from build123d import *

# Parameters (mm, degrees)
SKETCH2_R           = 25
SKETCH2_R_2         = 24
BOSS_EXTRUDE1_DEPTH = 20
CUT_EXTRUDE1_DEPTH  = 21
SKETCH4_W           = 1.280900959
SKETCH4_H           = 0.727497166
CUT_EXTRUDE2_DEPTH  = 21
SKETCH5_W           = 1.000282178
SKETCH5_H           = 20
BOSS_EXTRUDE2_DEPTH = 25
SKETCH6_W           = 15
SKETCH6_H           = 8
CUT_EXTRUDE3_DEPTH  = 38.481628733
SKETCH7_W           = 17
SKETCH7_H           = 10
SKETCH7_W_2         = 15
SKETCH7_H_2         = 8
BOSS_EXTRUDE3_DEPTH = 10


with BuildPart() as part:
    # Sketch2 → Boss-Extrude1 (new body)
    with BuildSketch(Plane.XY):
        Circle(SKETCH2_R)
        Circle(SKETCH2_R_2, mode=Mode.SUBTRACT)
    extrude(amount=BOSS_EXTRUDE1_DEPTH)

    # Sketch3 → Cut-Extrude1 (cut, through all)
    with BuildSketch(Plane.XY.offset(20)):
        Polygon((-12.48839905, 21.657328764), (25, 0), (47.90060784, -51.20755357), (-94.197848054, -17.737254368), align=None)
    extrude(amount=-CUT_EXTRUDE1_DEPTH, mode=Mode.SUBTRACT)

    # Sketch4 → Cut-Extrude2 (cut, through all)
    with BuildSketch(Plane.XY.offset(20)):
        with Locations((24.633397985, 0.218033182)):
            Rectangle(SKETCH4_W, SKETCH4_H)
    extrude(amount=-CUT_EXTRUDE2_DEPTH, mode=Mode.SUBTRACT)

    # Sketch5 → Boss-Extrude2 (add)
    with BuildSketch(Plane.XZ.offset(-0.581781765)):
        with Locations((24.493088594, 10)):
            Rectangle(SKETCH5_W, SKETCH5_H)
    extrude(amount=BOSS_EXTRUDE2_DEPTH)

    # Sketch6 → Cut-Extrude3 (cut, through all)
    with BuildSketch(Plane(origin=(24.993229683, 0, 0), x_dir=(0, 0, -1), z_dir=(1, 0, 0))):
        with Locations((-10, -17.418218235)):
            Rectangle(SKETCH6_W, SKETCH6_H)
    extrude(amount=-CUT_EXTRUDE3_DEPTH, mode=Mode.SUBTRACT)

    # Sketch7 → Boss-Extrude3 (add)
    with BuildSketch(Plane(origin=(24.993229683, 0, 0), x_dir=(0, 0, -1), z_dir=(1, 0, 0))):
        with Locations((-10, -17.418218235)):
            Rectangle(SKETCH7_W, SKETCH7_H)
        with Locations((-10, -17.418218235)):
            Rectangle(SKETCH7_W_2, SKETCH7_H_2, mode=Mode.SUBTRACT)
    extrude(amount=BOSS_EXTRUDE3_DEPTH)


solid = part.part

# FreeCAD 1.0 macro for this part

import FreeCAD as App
import Part
import Sketcher

doc = App.newDocument("Part")
params = doc.addObject("Spreadsheet::Sheet", "Params")
for row, (alias, value) in enumerate([
    ("sketch1_diameter", "50 mm"),
    ("sketch1_diameter2", "48 mm"),
    ("pad1_length", "20 mm"),
    ("sketch4_height", "20 mm"),
    ("pad2_length", "25 mm"),
    ("sketch5_width", "8 mm"),
    ("sketch5_height", "15 mm"),
    ("sketch6_width", "10 mm"),
    ("sketch6_width2", "8 mm"),
    ("sketch6_height", "17 mm"),
    ("sketch6_height2", "15 mm"),
    ("pad3_length", "10 mm"),
], start=1):
    params.set(f"A{row}", alias)
    params.set(f"B{row}", "=" + value)
    params.setAlias(f"B{row}", alias)

body = doc.addObject("PartDesign::Body", "Body")

# Sketch on XY plane
sketch1 = body.newObject("Sketcher::SketchObject", "Sketch")
sketch1.AttachmentSupport = (doc.getObject("XY_Plane"), [""])
sketch1.MapMode = "FlatFace"
sketch1.addGeometry(Part.Circle(App.Vector(0, 0, 0), App.Vector(0, 0, 1), 25), False)
sketch1.addGeometry(Part.Circle(App.Vector(0, 0, 0), App.Vector(0, 0, 1), 24), False)
sketch1.addConstraint(Sketcher.Constraint("Coincident", 0, 3, -1, 1))
sketch1.addConstraint(Sketcher.Constraint("Coincident", 1, 3, -1, 1))
sketch1.addConstraint(Sketcher.Constraint("Diameter", 0, 50.0))
sketch1.addConstraint(Sketcher.Constraint("Diameter", 1, 48.0))
sketch1.setExpression("Constraints[2]", "Params.sketch1_diameter")
sketch1.setExpression("Constraints[3]", "Params.sketch1_diameter2")
pad1 = body.newObject("PartDesign::Pad", "Pad")
pad1.Profile = sketch1
pad1.setExpression("Length", "Params.pad1_length")

# Sketch on XY plane
sketch2 = body.newObject("Sketcher::SketchObject", "Sketch001")
sketch2.AttachmentSupport = (doc.getObject("XY_Plane"), [""])
sketch2.MapMode = "FlatFace"
sketch2.AttachmentOffset = App.Placement(App.Vector(0, 0, 20), App.Rotation())
sketch2.addGeometry(Part.LineSegment(App.Vector(25, 0, 0), App.Vector(-12.488399, 21.657329, 0)), False)
sketch2.addGeometry(Part.LineSegment(App.Vector(-12.488399, 21.657329, 0), App.Vector(-94.197848, -17.737254, 0)), False)
sketch2.addGeometry(Part.LineSegment(App.Vector(-94.197848, -17.737254, 0), App.Vector(47.900608, -51.207554, 0)), False)
sketch2.addGeometry(Part.LineSegment(App.Vector(47.900608, -51.207554, 0), App.Vector(25, 0, 0)), False)
sketch2.addConstraint(Sketcher.Constraint("Coincident", 0, 2, 1, 1))
sketch2.addConstraint(Sketcher.Constraint("Coincident", 1, 2, 2, 1))
sketch2.addConstraint(Sketcher.Constraint("Coincident", 2, 2, 3, 1))
sketch2.addConstraint(Sketcher.Constraint("Coincident", 3, 2, 0, 1))
sketch2.addConstraint(Sketcher.Constraint("PointOnObject", 3, 2, -1))
sketch2.addConstraint(Sketcher.Constraint("DistanceX", -1, 1, 3, 2, 25.0))
sketch2.addConstraint(Sketcher.Constraint("DistanceX", 0, 2, -1, 1, 12.488399))
sketch2.addConstraint(Sketcher.Constraint("DistanceY", 2, 2, 1, 2, 33.470299))
sketch2.addConstraint(Sketcher.Constraint("Distance", 0, 43.294572))
sketch2.addConstraint(Sketcher.Constraint("Distance", 1, 90.710348))
sketch2.addConstraint(Sketcher.Constraint("Distance", 3, 56.095021))
sketch2.addConstraint(Sketcher.Constraint("DistanceX", 1, 2, -1, 1, 94.197848))
pocket1 = body.newObject("PartDesign::Pocket", "Pocket")
pocket1.Profile = sketch2
pocket1.Type = "ThroughAll"

# Sketch on XY plane
sketch3 = body.newObject("Sketcher::SketchObject", "Sketch002")
sketch3.AttachmentSupport = (doc.getObject("XY_Plane"), [""])
sketch3.MapMode = "FlatFace"
sketch3.AttachmentOffset = App.Placement(App.Vector(0, 0, 20), App.Rotation())
sketch3.addGeometry(Part.LineSegment(App.Vector(23.992948, 0.581782, 0), App.Vector(23.992948, -0.145715, 0)), False)
sketch3.addGeometry(Part.LineSegment(App.Vector(23.992948, -0.145715, 0), App.Vector(25.273848, -0.145715, 0)), False)
sketch3.addGeometry(Part.LineSegment(App.Vector(25.273848, -0.145715, 0), App.Vector(25.273848, 0.581782, 0)), False)
sketch3.addGeometry(Part.LineSegment(App.Vector(25.273848, 0.581782, 0), App.Vector(23.992948, 0.581782, 0)), False)
sketch3.addConstraint(Sketcher.Constraint("Coincident", 0, 2, 1, 1))
sketch3.addConstraint(Sketcher.Constraint("Coincident", 1, 2, 2, 1))
sketch3.addConstraint(Sketcher.Constraint("Coincident", 2, 2, 3, 1))
sketch3.addConstraint(Sketcher.Constraint("Coincident", 3, 2, 0, 1))
sketch3.addConstraint(Sketcher.Constraint("Vertical", 0))
sketch3.addConstraint(Sketcher.Constraint("Horizontal", 1))
sketch3.addConstraint(Sketcher.Constraint("Vertical", 2))
sketch3.addConstraint(Sketcher.Constraint("Horizontal", 3))
sketch3.addConstraint(Sketcher.Constraint("DistanceX", 1, 1, 1, 2, 1.280901))
sketch3.addConstraint(Sketcher.Constraint("DistanceY", 0, 2, 0, 1, 0.727497))
sketch3.addConstraint(Sketcher.Constraint("DistanceX", -1, 1, 1, 2, 25.273848))
sketch3.addConstraint(Sketcher.Constraint("DistanceY", -1, 1, 2, 2, 0.581782))
pocket2 = body.newObject("PartDesign::Pocket", "Pocket001")
pocket2.Profile = sketch3
pocket2.Type = "ThroughAll"

# Sketch on XZ plane
sketch4 = body.newObject("Sketcher::SketchObject", "Sketch003")
sketch4.AttachmentSupport = (doc.getObject("XZ_Plane"), [""])
sketch4.MapMode = "FlatFace"
sketch4.AttachmentOffset = App.Placement(App.Vector(0, 0, -0.581782), App.Rotation())
sketch4.addGeometry(Part.LineSegment(App.Vector(23.992948, 20, 0), App.Vector(23.992948, 0, 0)), False)
sketch4.addGeometry(Part.LineSegment(App.Vector(23.992948, 0, 0), App.Vector(24.99323, 0, 0)), False)
sketch4.addGeometry(Part.LineSegment(App.Vector(24.99323, 0, 0), App.Vector(24.99323, 20, 0)), False)
sketch4.addGeometry(Part.LineSegment(App.Vector(24.99323, 20, 0), App.Vector(23.992948, 20, 0)), False)
sketch4.addConstraint(Sketcher.Constraint("Coincident", 0, 2, 1, 1))
sketch4.addConstraint(Sketcher.Constraint("Coincident", 1, 2, 2, 1))
sketch4.addConstraint(Sketcher.Constraint("Coincident", 2, 2, 3, 1))
sketch4.addConstraint(Sketcher.Constraint("Coincident", 3, 2, 0, 1))
sketch4.addConstraint(Sketcher.Constraint("Vertical", 0))
sketch4.addConstraint(Sketcher.Constraint("Horizontal", 1))
sketch4.addConstraint(Sketcher.Constraint("Vertical", 2))
sketch4.addConstraint(Sketcher.Constraint("Horizontal", 3))
sketch4.addConstraint(Sketcher.Constraint("PointOnObject", 0, 2, -1))
sketch4.addConstraint(Sketcher.Constraint("DistanceY", 0, 2, 0, 1, 20.0))
sketch4.addConstraint(Sketcher.Constraint("DistanceX", 1, 1, 1, 2, 1.000282))
sketch4.addConstraint(Sketcher.Constraint("DistanceX", -1, 1, 1, 2, 24.99323))
sketch4.setExpression("Constraints[9]", "Params.sketch4_height")
pad2 = body.newObject("PartDesign::Pad", "Pad001")
pad2.Profile = sketch4
pad2.setExpression("Length", "Params.pad2_length")

# Sketch on YZ plane
sketch5 = body.newObject("Sketcher::SketchObject", "Sketch004")
sketch5.AttachmentSupport = (doc.getObject("YZ_Plane"), [""])
sketch5.MapMode = "FlatFace"
sketch5.AttachmentOffset = App.Placement(App.Vector(0, 0, 24.99323), App.Rotation())
sketch5.addGeometry(Part.LineSegment(App.Vector(-13.418218, 17.5, 0), App.Vector(-21.418218, 17.5, 0)), False)
sketch5.addGeometry(Part.LineSegment(App.Vector(-21.418218, 17.5, 0), App.Vector(-21.418218, 2.5, 0)), False)
sketch5.addGeometry(Part.LineSegment(App.Vector(-21.418218, 2.5, 0), App.Vector(-13.418218, 2.5, 0)), False)
sketch5.addGeometry(Part.LineSegment(App.Vector(-13.418218, 2.5, 0), App.Vector(-13.418218, 17.5, 0)), False)
sketch5.addConstraint(Sketcher.Constraint("Coincident", 0, 2, 1, 1))
sketch5.addConstraint(Sketcher.Constraint("Coincident", 1, 2, 2, 1))
sketch5.addConstraint(Sketcher.Constraint("Coincident", 2, 2, 3, 1))
sketch5.addConstraint(Sketcher.Constraint("Coincident", 3, 2, 0, 1))
sketch5.addConstraint(Sketcher.Constraint("Horizontal", 0))
sketch5.addConstraint(Sketcher.Constraint("Vertical", 1))
sketch5.addConstraint(Sketcher.Constraint("Horizontal", 2))
sketch5.addConstraint(Sketcher.Constraint("Vertical", 3))
sketch5.addConstraint(Sketcher.Constraint("DistanceX", 0, 2, 0, 1, 8.0))
sketch5.addConstraint(Sketcher.Constraint("DistanceY", 1, 2, 1, 1, 15.0))
sketch5.addConstraint(Sketcher.Constraint("DistanceY", -1, 1, 0, 2, 17.5))
sketch5.addConstraint(Sketcher.Constraint("DistanceX", 0, 2, -1, 1, 21.418218))
sketch5.setExpression("Constraints[8]", "Params.sketch5_width")
sketch5.setExpression("Constraints[9]", "Params.sketch5_height")
pocket3 = body.newObject("PartDesign::Pocket", "Pocket002")
pocket3.Profile = sketch5
pocket3.Type = "ThroughAll"

# Sketch on YZ plane
sketch6 = body.newObject("Sketcher::SketchObject", "Sketch005")
sketch6.AttachmentSupport = (doc.getObject("YZ_Plane"), [""])
sketch6.MapMode = "FlatFace"
sketch6.AttachmentOffset = App.Placement(App.Vector(0, 0, 24.99323), App.Rotation())
sketch6.addGeometry(Part.LineSegment(App.Vector(-12.418218, 18.5, 0), App.Vector(-22.418218, 18.5, 0)), False)
sketch6.addGeometry(Part.LineSegment(App.Vector(-22.418218, 18.5, 0), App.Vector(-22.418218, 1.5, 0)), False)
sketch6.addGeometry(Part.LineSegment(App.Vector(-22.418218, 1.5, 0), App.Vector(-12.418218, 1.5, 0)), False)
sketch6.addGeometry(Part.LineSegment(App.Vector(-12.418218, 1.5, 0), App.Vector(-12.418218, 18.5, 0)), False)
sketch6.addGeometry(Part.LineSegment(App.Vector(-21.418218, 2.5, 0), App.Vector(-21.418218, 17.5, 0)), False)
sketch6.addGeometry(Part.LineSegment(App.Vector(-21.418218, 17.5, 0), App.Vector(-13.418218, 17.5, 0)), False)
sketch6.addGeometry(Part.LineSegment(App.Vector(-13.418218, 17.5, 0), App.Vector(-13.418218, 2.5, 0)), False)
sketch6.addGeometry(Part.LineSegment(App.Vector(-13.418218, 2.5, 0), App.Vector(-21.418218, 2.5, 0)), False)
sketch6.addConstraint(Sketcher.Constraint("Coincident", 0, 2, 1, 1))
sketch6.addConstraint(Sketcher.Constraint("Coincident", 1, 2, 2, 1))
sketch6.addConstraint(Sketcher.Constraint("Coincident", 2, 2, 3, 1))
sketch6.addConstraint(Sketcher.Constraint("Coincident", 3, 2, 0, 1))
sketch6.addConstraint(Sketcher.Constraint("Coincident", 4, 2, 5, 1))
sketch6.addConstraint(Sketcher.Constraint("Coincident", 5, 2, 6, 1))
sketch6.addConstraint(Sketcher.Constraint("Coincident", 6, 2, 7, 1))
sketch6.addConstraint(Sketcher.Constraint("Coincident", 7, 2, 4, 1))
sketch6.addConstraint(Sketcher.Constraint("Horizontal", 0))
sketch6.addConstraint(Sketcher.Constraint("Vertical", 1))
sketch6.addConstraint(Sketcher.Constraint("Horizontal", 2))
sketch6.addConstraint(Sketcher.Constraint("Vertical", 3))
sketch6.addConstraint(Sketcher.Constraint("Vertical", 4))
sketch6.addConstraint(Sketcher.Constraint("Horizontal", 5))
sketch6.addConstraint(Sketcher.Constraint("Vertical", 6))
sketch6.addConstraint(Sketcher.Constraint("Horizontal", 7))
sketch6.addConstraint(Sketcher.Constraint("DistanceX", 0, 2, 0, 1, 10.0))
sketch6.addConstraint(Sketcher.Constraint("DistanceX", 5, 1, 5, 2, 8.0))
sketch6.addConstraint(Sketcher.Constraint("DistanceY", 1, 2, 1, 1, 17.0))
sketch6.addConstraint(Sketcher.Constraint("DistanceY", 4, 1, 4, 2, 15.0))
sketch6.addConstraint(Sketcher.Constraint("DistanceX", 0, 2, 4, 2, 1.0))
sketch6.addConstraint(Sketcher.Constraint("DistanceY", 4, 2, 0, 2, 1.0))
sketch6.addConstraint(Sketcher.Constraint("DistanceY", -1, 1, 0, 2, 18.5))
sketch6.addConstraint(Sketcher.Constraint("DistanceX", 0, 2, -1, 1, 22.418218))
sketch6.setExpression("Constraints[16]", "Params.sketch6_width")
sketch6.setExpression("Constraints[17]", "Params.sketch6_width2")
sketch6.setExpression("Constraints[18]", "Params.sketch6_height")
sketch6.setExpression("Constraints[19]", "Params.sketch6_height2")
pad3 = body.newObject("PartDesign::Pad", "Pad002")
pad3.Profile = sketch6
pad3.setExpression("Length", "Params.pad3_length")

doc.recompute()
